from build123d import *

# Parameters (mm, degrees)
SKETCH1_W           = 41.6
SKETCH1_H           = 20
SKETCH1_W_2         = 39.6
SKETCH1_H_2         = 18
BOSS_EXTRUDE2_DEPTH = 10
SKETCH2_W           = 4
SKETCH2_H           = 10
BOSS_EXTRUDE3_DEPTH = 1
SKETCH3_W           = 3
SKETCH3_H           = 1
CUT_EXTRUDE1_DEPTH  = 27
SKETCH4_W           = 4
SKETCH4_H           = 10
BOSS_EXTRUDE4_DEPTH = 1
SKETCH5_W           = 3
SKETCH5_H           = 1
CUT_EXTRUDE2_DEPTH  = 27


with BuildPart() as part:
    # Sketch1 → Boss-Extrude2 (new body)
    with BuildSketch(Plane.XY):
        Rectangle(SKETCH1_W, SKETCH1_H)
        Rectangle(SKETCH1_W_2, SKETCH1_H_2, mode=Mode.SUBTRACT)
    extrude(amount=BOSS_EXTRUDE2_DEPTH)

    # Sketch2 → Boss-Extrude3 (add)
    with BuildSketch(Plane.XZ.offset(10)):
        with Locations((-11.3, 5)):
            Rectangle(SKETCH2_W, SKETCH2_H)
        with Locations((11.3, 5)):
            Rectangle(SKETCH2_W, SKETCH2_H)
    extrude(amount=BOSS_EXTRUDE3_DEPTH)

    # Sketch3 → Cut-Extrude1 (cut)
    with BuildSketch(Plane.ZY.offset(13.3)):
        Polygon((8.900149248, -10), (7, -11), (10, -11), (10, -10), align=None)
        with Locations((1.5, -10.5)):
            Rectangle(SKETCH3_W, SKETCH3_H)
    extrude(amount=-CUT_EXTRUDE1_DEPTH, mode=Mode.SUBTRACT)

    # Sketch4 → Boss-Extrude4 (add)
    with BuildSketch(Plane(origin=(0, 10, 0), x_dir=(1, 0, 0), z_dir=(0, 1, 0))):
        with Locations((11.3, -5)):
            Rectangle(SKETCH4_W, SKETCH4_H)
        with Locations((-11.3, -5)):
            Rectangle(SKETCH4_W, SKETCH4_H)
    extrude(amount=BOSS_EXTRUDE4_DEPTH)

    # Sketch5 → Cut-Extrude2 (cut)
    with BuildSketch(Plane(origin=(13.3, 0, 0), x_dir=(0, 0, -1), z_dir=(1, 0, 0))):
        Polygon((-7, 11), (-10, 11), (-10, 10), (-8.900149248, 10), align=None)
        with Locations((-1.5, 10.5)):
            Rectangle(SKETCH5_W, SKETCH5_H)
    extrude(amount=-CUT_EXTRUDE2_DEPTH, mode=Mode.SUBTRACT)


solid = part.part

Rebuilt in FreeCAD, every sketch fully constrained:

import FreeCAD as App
import Part
import Sketcher
from FreeCAD import Vector
Q = App.Units.Quantity


def add_polygon(sketch, points):
    """Adds a closed chain of lines whose ends are joined by coincident constraints."""
    first, n = sketch.GeometryCount, len(points)
    for a, b in zip(points, points[1:] + points[:1]):
        sketch.addGeometry(Part.LineSegment(App.Vector(*a, 0), App.Vector(*b, 0)), False)
    for i in range(n):
        sketch.addConstraint(Sketcher.Constraint("Coincident", first + i, 2, first + (i + 1) % n, 1))

doc = App.newDocument("Part")
body = doc.addObject("PartDesign::Body", "Body")

# Sketch on XY plane
sketch1 = body.newObject("Sketcher::SketchObject", "Sketch")
sketch1.AttachmentSupport = (doc.getObject("XY_Plane"), [""])
sketch1.MapMode = "FlatFace"
add_polygon(sketch1, [(-21, 10), (-21, -10), (21, -10), (21, 10)])  # lines 0-3
add_polygon(sketch1, [(20, -9), (-20, -9), (-20, 9), (20, 9)])  # lines 4-7
sketch1.addConstraint([
    Sketcher.Constraint("Vertical", 0),
    Sketcher.Constraint("Horizontal", 1),
    Sketcher.Constraint("Vertical", 2),
    Sketcher.Constraint("Horizontal", 3),
    Sketcher.Constraint("Horizontal", 4),
    Sketcher.Constraint("Vertical", 5),
    Sketcher.Constraint("Horizontal", 6),
    Sketcher.Constraint("Vertical", 7),
    Sketcher.Constraint("Symmetric", 0, 2, 2, 2, -1, 1),
    Sketcher.Constraint("Symmetric", 4, 2, 6, 2, -1, 1),
    Sketcher.Constraint("DistanceY", 0, 2, 0, 1, Q("20 mm")),
    Sketcher.Constraint("DistanceY", 5, 1, 5, 2, Q("18 mm")),
    Sketcher.Constraint("DistanceX", 1, 1, 1, 2, Q("41.6 mm")),
    Sketcher.Constraint("DistanceX", 4, 2, 4, 1, Q("39.6 mm")),
])
pad1 = body.newObject("PartDesign::Pad", "Pad")
pad1.Profile = sketch1
pad1.Length = 10

# Sketch on XZ plane
sketch2 = body.newObject("Sketcher::SketchObject", "Sketch001")
sketch2.AttachmentSupport = (doc.getObject("XZ_Plane"), [""])
sketch2.MapMode = "FlatFace"
sketch2.AttachmentOffset = App.Placement(Vector(0, 0, 10), App.Rotation())
add_polygon(sketch2, [(-13.3, 10), (-13.3, 0), (-9.3, 0), (-9.3, 10)])  # lines 0-3
add_polygon(sketch2, [(9.3, 10), (9.3, 0), (13.3, 0), (13.3, 10)])  # lines 4-7
sketch2.addConstraint([
    Sketcher.Constraint("Vertical", 0),
    Sketcher.Constraint("Horizontal", 1),
    Sketcher.Constraint("Vertical", 2),
    Sketcher.Constraint("Horizontal", 3),
    Sketcher.Constraint("Vertical", 4),
    Sketcher.Constraint("Horizontal", 5),
    Sketcher.Constraint("Vertical", 6),
    Sketcher.Constraint("Horizontal", 7),
    Sketcher.Constraint("Symmetric", 1, 2, 4, 2, -1, 1),
    Sketcher.Constraint("Symmetric", 0, 2, 5, 2, -2),
    Sketcher.Constraint("Horizontal", 3, 2, 6, 2),
    Sketcher.Constraint("DistanceX", 1, 1, 1, 2, Q("4 mm")),
    Sketcher.Constraint("DistanceY", 0, 2, 0, 1, Q("10 mm")),
    Sketcher.Constraint("DistanceX", 0, 2, -1, 1, Q("13.3 mm")),
])
pad2 = body.newObject("PartDesign::Pad", "Pad001")
pad2.Profile = sketch2
pad2.Length = 1

# Sketch on YZ plane
sketch3 = body.newObject("Sketcher::SketchObject", "Sketch002")
sketch3.AttachmentSupport = (doc.getObject("YZ_Plane"), [""])
sketch3.MapMode = "FlatFace"
sketch3.AttachmentOffset = App.Placement(Vector(0, 0, -13.3), App.Rotation())
add_polygon(sketch3, [(-10, 8.9), (-11, 7), (-11, 10), (-10, 10)])  # lines 0-3
add_polygon(sketch3, [(-10, 0), (-11, 0), (-11, 3), (-10, 3)])  # lines 4-7
sketch3.addConstraint([
    Sketcher.Constraint("Vertical", 1),
    Sketcher.Constraint("Horizontal", 2),
    Sketcher.Constraint("Vertical", 3),
    Sketcher.Constraint("Horizontal", 4),
    Sketcher.Constraint("Vertical", 5),
    Sketcher.Constraint("Horizontal", 6),
    Sketcher.Constraint("Vertical", 7),
    Sketcher.Constraint("PointOnObject", 4, 2, -1),
    Sketcher.Constraint("Vertical", 1, 2, 4, 2),
    Sketcher.Constraint("Vertical", 3, 2, 6, 2),
    Sketcher.Constraint("Equal", 1, 5),
    Sketcher.Constraint("DistanceX", 2, 1, 2, 2, Q("1 mm")),
    Sketcher.Constraint("DistanceY", 1, 1, 1, 2, Q("3 mm")),
    Sketcher.Constraint("DistanceX", 0, 2, -1, 1, Q("11 mm")),
    Sketcher.Constraint("DistanceY", -1, 1, 0, 2, Q("7 mm")),
    Sketcher.Constraint("DistanceY", 3, 2, 3, 1, Q("1.099851 mm")),
])
pocket1 = body.newObject("PartDesign::Pocket", "Pocket")
pocket1.Profile = sketch3
pocket1.Length = 27
pocket1.Reversed = True

# Sketch on XZ plane
sketch4 = body.newObject("Sketcher::SketchObject", "Sketch003")
sketch4.AttachmentSupport = (doc.getObject("XZ_Plane"), [""])
sketch4.MapMode = "FlatFace"
sketch4.AttachmentOffset = App.Placement(Vector(0, 0, -10), App.Rotation())
add_polygon(sketch4, [(9.3, 0), (9.3, 10), (13.3, 10), (13.3, 0)])  # lines 0-3
add_polygon(sketch4, [(-13.3, 0), (-13.3, 10), (-9.3, 10), (-9.3, 0)])  # lines 4-7
sketch4.addConstraint([
    Sketcher.Constraint("Vertical", 0),
    Sketcher.Constraint("Horizontal", 1),
    Sketcher.Constraint("Vertical", 2),
    Sketcher.Constraint("Horizontal", 3),
    Sketcher.Constraint("Vertical", 4),
    Sketcher.Constraint("Horizontal", 5),
    Sketcher.Constraint("Vertical", 6),
    Sketcher.Constraint("Horizontal", 7),
    Sketcher.Constraint("Symmetric", 3, 2, 6, 2, -1, 1),
    Sketcher.Constraint("Symmetric", 1, 2, 4, 2, -2),
    Sketcher.Constraint("PointOnObject", 2, 2, -1),
    Sketcher.Constraint("DistanceX", 1, 1, 1, 2, Q("4 mm")),
    Sketcher.Constraint("DistanceY", 0, 1, 0, 2, Q("10 mm")),
    Sketcher.Constraint("DistanceX", -1, 1, 0, 2, Q("9.3 mm")),
])
pad3 = body.newObject("PartDesign::Pad", "Pad002")
pad3.Profile = sketch4
pad3.Length = 1
pad3.Reversed = True

# Sketch on YZ plane
sketch5 = body.newObject("Sketcher::SketchObject", "Sketch004")
sketch5.AttachmentSupport = (doc.getObject("YZ_Plane"), [""])
sketch5.MapMode = "FlatFace"
sketch5.AttachmentOffset = App.Placement(Vector(0, 0, 13.3), App.Rotation())
add_polygon(sketch5, [(11, 7), (11, 10), (10, 10), (10, 8.9)])  # lines 0-3
add_polygon(sketch5, [(11, 3), (10, 3), (10, 0), (11, 0)])  # lines 4-7
sketch5.addConstraint([
    Sketcher.Constraint("Vertical", 0),
    Sketcher.Constraint("Horizontal", 1),
    Sketcher.Constraint("Vertical", 2),
    Sketcher.Constraint("Horizontal", 4),
    Sketcher.Constraint("Vertical", 5),
    Sketcher.Constraint("Horizontal", 6),
    Sketcher.Constraint("Vertical", 7),
    Sketcher.Constraint("PointOnObject", 5, 2, -1),
    Sketcher.Constraint("Vertical", 2, 2, 4, 2),
    Sketcher.Constraint("Vertical", 3, 2, 6, 2),
    Sketcher.Constraint("Equal", 0, 5),
    Sketcher.Constraint("DistanceX", 1, 2, 1, 1, Q("1 mm")),
    Sketcher.Constraint("DistanceY", 0, 1, 0, 2, Q("3 mm")),
    Sketcher.Constraint("DistanceX", -1, 1, 0, 2, Q("11 mm")),
    Sketcher.Constraint("DistanceY", -1, 1, 0, 2, Q("10 mm")),
    Sketcher.Constraint("DistanceY", 2, 2, 2, 1, Q("1.099851 mm")),
])
pocket2 = body.newObject("PartDesign::Pocket", "Pocket001")
pocket2.Profile = sketch5
pocket2.Length = 27

doc.recompute()
